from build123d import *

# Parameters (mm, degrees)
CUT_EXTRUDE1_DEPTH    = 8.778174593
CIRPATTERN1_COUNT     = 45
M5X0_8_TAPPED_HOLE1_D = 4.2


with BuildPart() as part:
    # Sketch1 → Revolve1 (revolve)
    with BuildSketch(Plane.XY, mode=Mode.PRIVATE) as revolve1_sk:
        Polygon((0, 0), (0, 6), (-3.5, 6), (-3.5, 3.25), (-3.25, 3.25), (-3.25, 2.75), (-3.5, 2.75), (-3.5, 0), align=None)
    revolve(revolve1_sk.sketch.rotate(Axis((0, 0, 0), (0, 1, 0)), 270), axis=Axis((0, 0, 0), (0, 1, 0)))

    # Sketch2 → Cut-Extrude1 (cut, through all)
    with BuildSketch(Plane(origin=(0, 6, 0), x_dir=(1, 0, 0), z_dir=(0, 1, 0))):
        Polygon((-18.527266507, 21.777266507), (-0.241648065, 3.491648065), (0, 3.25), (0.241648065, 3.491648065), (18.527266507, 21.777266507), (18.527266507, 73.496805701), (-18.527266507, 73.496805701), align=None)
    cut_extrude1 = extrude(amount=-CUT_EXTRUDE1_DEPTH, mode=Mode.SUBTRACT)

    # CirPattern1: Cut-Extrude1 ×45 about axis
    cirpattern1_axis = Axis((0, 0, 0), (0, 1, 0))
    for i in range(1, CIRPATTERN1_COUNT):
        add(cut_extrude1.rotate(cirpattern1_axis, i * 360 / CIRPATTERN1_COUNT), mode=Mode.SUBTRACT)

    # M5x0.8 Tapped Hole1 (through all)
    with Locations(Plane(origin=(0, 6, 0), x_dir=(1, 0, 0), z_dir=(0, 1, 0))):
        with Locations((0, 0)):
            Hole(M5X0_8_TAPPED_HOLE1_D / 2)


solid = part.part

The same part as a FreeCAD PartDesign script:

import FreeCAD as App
import Part
import Sketcher
from FreeCAD import Vector
Q = App.Units.Quantity

doc = App.newDocument("Part")
body = doc.addObject("PartDesign::Body", "Body")

# Sketch on XY plane
sketch1 = doc.addObject("Sketcher::SketchObject", "Sketch")
body.addObject(sketch1)
sketch1.AttachmentSupport = (doc.XY_Plane, [""])
sketch1.MapMode = "FlatFace"
sketch1.addGeometry(Part.LineSegment(Vector(0, 0, 0), Vector(0, 6, 0)), False)
sketch1.addGeometry(Part.LineSegment(Vector(0, 6, 0), Vector(-3.5, 6, 0)), False)
sketch1.addGeometry(Part.LineSegment(Vector(-3.5, 6, 0), Vector(-3.5, 3.25, 0)), False)
sketch1.addGeometry(Part.LineSegment(Vector(-3.5, 3.25, 0), Vector(-3.25, 3.25, 0)), False)
sketch1.addGeometry(Part.LineSegment(Vector(-3.25, 3.25, 0), Vector(-3.25, 2.75, 0)), False)
sketch1.addGeometry(Part.LineSegment(Vector(-3.25, 2.75, 0), Vector(-3.5, 2.75, 0)), False)
sketch1.addGeometry(Part.LineSegment(Vector(-3.5, 2.75, 0), Vector(-3.5, 0, 0)), False)
sketch1.addGeometry(Part.LineSegment(Vector(-3.5, 0, 0), Vector(0, 0, 0)), False)
sketch1.addConstraint(Sketcher.Constraint("Coincident", 0, 2, 1, 1))
sketch1.addConstraint(Sketcher.Constraint("Coincident", 1, 2, 2, 1))
sketch1.addConstraint(Sketcher.Constraint("Coincident", 2, 2, 3, 1))
sketch1.addConstraint(Sketcher.Constraint("Coincident", 3, 2, 4, 1))
sketch1.addConstraint(Sketcher.Constraint("Coincident", 4, 2, 5, 1))
sketch1.addConstraint(Sketcher.Constraint("Coincident", 5, 2, 6, 1))
sketch1.addConstraint(Sketcher.Constraint("Coincident", 6, 2, 7, 1))
sketch1.addConstraint(Sketcher.Constraint("Coincident", 7, 2, 0, 1))
sketch1.addConstraint(Sketcher.Constraint("Vertical", 0))
sketch1.addConstraint(Sketcher.Constraint("Horizontal", 1))
sketch1.addConstraint(Sketcher.Constraint("Vertical", 2))
sketch1.addConstraint(Sketcher.Constraint("Horizontal", 3))
sketch1.addConstraint(Sketcher.Constraint("Vertical", 4))
sketch1.addConstraint(Sketcher.Constraint("Horizontal", 5))
sketch1.addConstraint(Sketcher.Constraint("Vertical", 6))
sketch1.addConstraint(Sketcher.Constraint("Horizontal", 7))
sketch1.addConstraint(Sketcher.Constraint("Coincident", 7, 2, -1, 1))
sketch1.addConstraint(Sketcher.Constraint("Vertical", 2, 2, 5, 2))
sketch1.addConstraint(Sketcher.Constraint("Equal", 2, 6))
sketch1.addConstraint(Sketcher.Constraint("DistanceY", 0, 1, 0, 2, Q("6 mm")))
sketch1.addConstraint(Sketcher.Constraint("DistanceX", 1, 2, 1, 1, Q("3.5 mm")))
sketch1.addConstraint(Sketcher.Constraint("DistanceY", 4, 2, 4, 1, Q("0.5 mm")))
sketch1.addConstraint(Sketcher.Constraint("DistanceX", 3, 1, 3, 2, Q("0.25 mm")))
revolution = doc.addObject("PartDesign::Revolution", "Revolution")
body.addObject(revolution)
revolution.Profile = sketch1
revolution.ReferenceAxis = (sketch1, ["V_Axis"])
revolution.Angle = 360

# Sketch on XZ plane
sketch2 = doc.addObject("Sketcher::SketchObject", "Sketch001")
body.addObject(sketch2)
sketch2.AttachmentSupport = (doc.XZ_Plane, [""])
sketch2.MapMode = "FlatFace"
sketch2.AttachmentOffset = App.Placement(Vector(0, 0, -6), App.Rotation())
sketch2.addGeometry(Part.LineSegment(Vector(-19, -22, 0), Vector(0, -3, 0)), False)
sketch2.addGeometry(Part.LineSegment(Vector(0, -3, 0), Vector(19, -22, 0)), False)
sketch2.addGeometry(Part.LineSegment(Vector(19, -22, 0), Vector(19, -73, 0)), False)
sketch2.addGeometry(Part.LineSegment(Vector(19, -73, 0), Vector(-19, -73, 0)), False)
sketch2.addGeometry(Part.LineSegment(Vector(-19, -73, 0), Vector(-19, -22, 0)), False)
sketch2.addConstraint(Sketcher.Constraint("Coincident", 0, 2, 1, 1))
sketch2.addConstraint(Sketcher.Constraint("Coincident", 1, 2, 2, 1))
sketch2.addConstraint(Sketcher.Constraint("Coincident", 2, 2, 3, 1))
sketch2.addConstraint(Sketcher.Constraint("Coincident", 3, 2, 4, 1))
sketch2.addConstraint(Sketcher.Constraint("Coincident", 4, 2, 0, 1))
sketch2.addConstraint(Sketcher.Constraint("Vertical", 2))
sketch2.addConstraint(Sketcher.Constraint("Horizontal", 3))
sketch2.addConstraint(Sketcher.Constraint("Vertical", 4))
sketch2.addConstraint(Sketcher.Constraint("Symmetric", 1, 2, 4, 2, -2))
sketch2.addConstraint(Sketcher.Constraint("PointOnObject", 0, 2, -2))
sketch2.addConstraint(Sketcher.Constraint("Perpendicular", 0, 1))
sketch2.addConstraint(Sketcher.Constraint("DistanceY", 0, 2, -1, 1, Q("3.25 mm")))
sketch2.addConstraint(Sketcher.Constraint("DistanceY", 2, 2, 2, 1, Q("51.719539 mm")))
sketch2.addConstraint(Sketcher.Constraint("Distance", 0, Q("26.201512 mm")))
pocket1 = doc.addObject("PartDesign::Pocket", "Pocket")
body.addObject(pocket1)
pocket1.Profile = sketch2
pocket1.Type = "ThroughAll"
pocket1.Reversed = True
doc.recompute()

polarpattern = doc.addObject("PartDesign::PolarPattern", "PolarPattern")
body.addObject(polarpattern)
polarpattern.Originals = [pocket1]
polarpattern.Axis = (doc.Y_Axis, [""])
polarpattern.Angle = 360
polarpattern.Occurrences = 45
body.Tip = polarpattern

# Sketch on XZ plane
sketch3 = doc.addObject("Sketcher::SketchObject", "Sketch002")
body.addObject(sketch3)
sketch3.AttachmentSupport = (doc.XZ_Plane, [""])
sketch3.MapMode = "FlatFace"
sketch3.AttachmentOffset = App.Placement(Vector(0, 0, -6), App.Rotation())
sketch3.addGeometry(Part.Circle(Vector(0, 0, 0), Vector(0, 0, 1), 2.1), False)
sketch3.addConstraint(Sketcher.Constraint("Coincident", 0, 3, -1, 1))
sketch3.addConstraint(Sketcher.Constraint("Diameter", 0, Q("4.2 mm")))
doc.recompute()
hole = doc.addObject("PartDesign::Hole", "Hole")
body.addObject(hole)
hole.Profile = sketch3
hole.ThreadType = "None"
hole.Diameter = 4.2
hole.DepthType = "ThroughAll"
hole.Reversed = True

doc.recompute()
